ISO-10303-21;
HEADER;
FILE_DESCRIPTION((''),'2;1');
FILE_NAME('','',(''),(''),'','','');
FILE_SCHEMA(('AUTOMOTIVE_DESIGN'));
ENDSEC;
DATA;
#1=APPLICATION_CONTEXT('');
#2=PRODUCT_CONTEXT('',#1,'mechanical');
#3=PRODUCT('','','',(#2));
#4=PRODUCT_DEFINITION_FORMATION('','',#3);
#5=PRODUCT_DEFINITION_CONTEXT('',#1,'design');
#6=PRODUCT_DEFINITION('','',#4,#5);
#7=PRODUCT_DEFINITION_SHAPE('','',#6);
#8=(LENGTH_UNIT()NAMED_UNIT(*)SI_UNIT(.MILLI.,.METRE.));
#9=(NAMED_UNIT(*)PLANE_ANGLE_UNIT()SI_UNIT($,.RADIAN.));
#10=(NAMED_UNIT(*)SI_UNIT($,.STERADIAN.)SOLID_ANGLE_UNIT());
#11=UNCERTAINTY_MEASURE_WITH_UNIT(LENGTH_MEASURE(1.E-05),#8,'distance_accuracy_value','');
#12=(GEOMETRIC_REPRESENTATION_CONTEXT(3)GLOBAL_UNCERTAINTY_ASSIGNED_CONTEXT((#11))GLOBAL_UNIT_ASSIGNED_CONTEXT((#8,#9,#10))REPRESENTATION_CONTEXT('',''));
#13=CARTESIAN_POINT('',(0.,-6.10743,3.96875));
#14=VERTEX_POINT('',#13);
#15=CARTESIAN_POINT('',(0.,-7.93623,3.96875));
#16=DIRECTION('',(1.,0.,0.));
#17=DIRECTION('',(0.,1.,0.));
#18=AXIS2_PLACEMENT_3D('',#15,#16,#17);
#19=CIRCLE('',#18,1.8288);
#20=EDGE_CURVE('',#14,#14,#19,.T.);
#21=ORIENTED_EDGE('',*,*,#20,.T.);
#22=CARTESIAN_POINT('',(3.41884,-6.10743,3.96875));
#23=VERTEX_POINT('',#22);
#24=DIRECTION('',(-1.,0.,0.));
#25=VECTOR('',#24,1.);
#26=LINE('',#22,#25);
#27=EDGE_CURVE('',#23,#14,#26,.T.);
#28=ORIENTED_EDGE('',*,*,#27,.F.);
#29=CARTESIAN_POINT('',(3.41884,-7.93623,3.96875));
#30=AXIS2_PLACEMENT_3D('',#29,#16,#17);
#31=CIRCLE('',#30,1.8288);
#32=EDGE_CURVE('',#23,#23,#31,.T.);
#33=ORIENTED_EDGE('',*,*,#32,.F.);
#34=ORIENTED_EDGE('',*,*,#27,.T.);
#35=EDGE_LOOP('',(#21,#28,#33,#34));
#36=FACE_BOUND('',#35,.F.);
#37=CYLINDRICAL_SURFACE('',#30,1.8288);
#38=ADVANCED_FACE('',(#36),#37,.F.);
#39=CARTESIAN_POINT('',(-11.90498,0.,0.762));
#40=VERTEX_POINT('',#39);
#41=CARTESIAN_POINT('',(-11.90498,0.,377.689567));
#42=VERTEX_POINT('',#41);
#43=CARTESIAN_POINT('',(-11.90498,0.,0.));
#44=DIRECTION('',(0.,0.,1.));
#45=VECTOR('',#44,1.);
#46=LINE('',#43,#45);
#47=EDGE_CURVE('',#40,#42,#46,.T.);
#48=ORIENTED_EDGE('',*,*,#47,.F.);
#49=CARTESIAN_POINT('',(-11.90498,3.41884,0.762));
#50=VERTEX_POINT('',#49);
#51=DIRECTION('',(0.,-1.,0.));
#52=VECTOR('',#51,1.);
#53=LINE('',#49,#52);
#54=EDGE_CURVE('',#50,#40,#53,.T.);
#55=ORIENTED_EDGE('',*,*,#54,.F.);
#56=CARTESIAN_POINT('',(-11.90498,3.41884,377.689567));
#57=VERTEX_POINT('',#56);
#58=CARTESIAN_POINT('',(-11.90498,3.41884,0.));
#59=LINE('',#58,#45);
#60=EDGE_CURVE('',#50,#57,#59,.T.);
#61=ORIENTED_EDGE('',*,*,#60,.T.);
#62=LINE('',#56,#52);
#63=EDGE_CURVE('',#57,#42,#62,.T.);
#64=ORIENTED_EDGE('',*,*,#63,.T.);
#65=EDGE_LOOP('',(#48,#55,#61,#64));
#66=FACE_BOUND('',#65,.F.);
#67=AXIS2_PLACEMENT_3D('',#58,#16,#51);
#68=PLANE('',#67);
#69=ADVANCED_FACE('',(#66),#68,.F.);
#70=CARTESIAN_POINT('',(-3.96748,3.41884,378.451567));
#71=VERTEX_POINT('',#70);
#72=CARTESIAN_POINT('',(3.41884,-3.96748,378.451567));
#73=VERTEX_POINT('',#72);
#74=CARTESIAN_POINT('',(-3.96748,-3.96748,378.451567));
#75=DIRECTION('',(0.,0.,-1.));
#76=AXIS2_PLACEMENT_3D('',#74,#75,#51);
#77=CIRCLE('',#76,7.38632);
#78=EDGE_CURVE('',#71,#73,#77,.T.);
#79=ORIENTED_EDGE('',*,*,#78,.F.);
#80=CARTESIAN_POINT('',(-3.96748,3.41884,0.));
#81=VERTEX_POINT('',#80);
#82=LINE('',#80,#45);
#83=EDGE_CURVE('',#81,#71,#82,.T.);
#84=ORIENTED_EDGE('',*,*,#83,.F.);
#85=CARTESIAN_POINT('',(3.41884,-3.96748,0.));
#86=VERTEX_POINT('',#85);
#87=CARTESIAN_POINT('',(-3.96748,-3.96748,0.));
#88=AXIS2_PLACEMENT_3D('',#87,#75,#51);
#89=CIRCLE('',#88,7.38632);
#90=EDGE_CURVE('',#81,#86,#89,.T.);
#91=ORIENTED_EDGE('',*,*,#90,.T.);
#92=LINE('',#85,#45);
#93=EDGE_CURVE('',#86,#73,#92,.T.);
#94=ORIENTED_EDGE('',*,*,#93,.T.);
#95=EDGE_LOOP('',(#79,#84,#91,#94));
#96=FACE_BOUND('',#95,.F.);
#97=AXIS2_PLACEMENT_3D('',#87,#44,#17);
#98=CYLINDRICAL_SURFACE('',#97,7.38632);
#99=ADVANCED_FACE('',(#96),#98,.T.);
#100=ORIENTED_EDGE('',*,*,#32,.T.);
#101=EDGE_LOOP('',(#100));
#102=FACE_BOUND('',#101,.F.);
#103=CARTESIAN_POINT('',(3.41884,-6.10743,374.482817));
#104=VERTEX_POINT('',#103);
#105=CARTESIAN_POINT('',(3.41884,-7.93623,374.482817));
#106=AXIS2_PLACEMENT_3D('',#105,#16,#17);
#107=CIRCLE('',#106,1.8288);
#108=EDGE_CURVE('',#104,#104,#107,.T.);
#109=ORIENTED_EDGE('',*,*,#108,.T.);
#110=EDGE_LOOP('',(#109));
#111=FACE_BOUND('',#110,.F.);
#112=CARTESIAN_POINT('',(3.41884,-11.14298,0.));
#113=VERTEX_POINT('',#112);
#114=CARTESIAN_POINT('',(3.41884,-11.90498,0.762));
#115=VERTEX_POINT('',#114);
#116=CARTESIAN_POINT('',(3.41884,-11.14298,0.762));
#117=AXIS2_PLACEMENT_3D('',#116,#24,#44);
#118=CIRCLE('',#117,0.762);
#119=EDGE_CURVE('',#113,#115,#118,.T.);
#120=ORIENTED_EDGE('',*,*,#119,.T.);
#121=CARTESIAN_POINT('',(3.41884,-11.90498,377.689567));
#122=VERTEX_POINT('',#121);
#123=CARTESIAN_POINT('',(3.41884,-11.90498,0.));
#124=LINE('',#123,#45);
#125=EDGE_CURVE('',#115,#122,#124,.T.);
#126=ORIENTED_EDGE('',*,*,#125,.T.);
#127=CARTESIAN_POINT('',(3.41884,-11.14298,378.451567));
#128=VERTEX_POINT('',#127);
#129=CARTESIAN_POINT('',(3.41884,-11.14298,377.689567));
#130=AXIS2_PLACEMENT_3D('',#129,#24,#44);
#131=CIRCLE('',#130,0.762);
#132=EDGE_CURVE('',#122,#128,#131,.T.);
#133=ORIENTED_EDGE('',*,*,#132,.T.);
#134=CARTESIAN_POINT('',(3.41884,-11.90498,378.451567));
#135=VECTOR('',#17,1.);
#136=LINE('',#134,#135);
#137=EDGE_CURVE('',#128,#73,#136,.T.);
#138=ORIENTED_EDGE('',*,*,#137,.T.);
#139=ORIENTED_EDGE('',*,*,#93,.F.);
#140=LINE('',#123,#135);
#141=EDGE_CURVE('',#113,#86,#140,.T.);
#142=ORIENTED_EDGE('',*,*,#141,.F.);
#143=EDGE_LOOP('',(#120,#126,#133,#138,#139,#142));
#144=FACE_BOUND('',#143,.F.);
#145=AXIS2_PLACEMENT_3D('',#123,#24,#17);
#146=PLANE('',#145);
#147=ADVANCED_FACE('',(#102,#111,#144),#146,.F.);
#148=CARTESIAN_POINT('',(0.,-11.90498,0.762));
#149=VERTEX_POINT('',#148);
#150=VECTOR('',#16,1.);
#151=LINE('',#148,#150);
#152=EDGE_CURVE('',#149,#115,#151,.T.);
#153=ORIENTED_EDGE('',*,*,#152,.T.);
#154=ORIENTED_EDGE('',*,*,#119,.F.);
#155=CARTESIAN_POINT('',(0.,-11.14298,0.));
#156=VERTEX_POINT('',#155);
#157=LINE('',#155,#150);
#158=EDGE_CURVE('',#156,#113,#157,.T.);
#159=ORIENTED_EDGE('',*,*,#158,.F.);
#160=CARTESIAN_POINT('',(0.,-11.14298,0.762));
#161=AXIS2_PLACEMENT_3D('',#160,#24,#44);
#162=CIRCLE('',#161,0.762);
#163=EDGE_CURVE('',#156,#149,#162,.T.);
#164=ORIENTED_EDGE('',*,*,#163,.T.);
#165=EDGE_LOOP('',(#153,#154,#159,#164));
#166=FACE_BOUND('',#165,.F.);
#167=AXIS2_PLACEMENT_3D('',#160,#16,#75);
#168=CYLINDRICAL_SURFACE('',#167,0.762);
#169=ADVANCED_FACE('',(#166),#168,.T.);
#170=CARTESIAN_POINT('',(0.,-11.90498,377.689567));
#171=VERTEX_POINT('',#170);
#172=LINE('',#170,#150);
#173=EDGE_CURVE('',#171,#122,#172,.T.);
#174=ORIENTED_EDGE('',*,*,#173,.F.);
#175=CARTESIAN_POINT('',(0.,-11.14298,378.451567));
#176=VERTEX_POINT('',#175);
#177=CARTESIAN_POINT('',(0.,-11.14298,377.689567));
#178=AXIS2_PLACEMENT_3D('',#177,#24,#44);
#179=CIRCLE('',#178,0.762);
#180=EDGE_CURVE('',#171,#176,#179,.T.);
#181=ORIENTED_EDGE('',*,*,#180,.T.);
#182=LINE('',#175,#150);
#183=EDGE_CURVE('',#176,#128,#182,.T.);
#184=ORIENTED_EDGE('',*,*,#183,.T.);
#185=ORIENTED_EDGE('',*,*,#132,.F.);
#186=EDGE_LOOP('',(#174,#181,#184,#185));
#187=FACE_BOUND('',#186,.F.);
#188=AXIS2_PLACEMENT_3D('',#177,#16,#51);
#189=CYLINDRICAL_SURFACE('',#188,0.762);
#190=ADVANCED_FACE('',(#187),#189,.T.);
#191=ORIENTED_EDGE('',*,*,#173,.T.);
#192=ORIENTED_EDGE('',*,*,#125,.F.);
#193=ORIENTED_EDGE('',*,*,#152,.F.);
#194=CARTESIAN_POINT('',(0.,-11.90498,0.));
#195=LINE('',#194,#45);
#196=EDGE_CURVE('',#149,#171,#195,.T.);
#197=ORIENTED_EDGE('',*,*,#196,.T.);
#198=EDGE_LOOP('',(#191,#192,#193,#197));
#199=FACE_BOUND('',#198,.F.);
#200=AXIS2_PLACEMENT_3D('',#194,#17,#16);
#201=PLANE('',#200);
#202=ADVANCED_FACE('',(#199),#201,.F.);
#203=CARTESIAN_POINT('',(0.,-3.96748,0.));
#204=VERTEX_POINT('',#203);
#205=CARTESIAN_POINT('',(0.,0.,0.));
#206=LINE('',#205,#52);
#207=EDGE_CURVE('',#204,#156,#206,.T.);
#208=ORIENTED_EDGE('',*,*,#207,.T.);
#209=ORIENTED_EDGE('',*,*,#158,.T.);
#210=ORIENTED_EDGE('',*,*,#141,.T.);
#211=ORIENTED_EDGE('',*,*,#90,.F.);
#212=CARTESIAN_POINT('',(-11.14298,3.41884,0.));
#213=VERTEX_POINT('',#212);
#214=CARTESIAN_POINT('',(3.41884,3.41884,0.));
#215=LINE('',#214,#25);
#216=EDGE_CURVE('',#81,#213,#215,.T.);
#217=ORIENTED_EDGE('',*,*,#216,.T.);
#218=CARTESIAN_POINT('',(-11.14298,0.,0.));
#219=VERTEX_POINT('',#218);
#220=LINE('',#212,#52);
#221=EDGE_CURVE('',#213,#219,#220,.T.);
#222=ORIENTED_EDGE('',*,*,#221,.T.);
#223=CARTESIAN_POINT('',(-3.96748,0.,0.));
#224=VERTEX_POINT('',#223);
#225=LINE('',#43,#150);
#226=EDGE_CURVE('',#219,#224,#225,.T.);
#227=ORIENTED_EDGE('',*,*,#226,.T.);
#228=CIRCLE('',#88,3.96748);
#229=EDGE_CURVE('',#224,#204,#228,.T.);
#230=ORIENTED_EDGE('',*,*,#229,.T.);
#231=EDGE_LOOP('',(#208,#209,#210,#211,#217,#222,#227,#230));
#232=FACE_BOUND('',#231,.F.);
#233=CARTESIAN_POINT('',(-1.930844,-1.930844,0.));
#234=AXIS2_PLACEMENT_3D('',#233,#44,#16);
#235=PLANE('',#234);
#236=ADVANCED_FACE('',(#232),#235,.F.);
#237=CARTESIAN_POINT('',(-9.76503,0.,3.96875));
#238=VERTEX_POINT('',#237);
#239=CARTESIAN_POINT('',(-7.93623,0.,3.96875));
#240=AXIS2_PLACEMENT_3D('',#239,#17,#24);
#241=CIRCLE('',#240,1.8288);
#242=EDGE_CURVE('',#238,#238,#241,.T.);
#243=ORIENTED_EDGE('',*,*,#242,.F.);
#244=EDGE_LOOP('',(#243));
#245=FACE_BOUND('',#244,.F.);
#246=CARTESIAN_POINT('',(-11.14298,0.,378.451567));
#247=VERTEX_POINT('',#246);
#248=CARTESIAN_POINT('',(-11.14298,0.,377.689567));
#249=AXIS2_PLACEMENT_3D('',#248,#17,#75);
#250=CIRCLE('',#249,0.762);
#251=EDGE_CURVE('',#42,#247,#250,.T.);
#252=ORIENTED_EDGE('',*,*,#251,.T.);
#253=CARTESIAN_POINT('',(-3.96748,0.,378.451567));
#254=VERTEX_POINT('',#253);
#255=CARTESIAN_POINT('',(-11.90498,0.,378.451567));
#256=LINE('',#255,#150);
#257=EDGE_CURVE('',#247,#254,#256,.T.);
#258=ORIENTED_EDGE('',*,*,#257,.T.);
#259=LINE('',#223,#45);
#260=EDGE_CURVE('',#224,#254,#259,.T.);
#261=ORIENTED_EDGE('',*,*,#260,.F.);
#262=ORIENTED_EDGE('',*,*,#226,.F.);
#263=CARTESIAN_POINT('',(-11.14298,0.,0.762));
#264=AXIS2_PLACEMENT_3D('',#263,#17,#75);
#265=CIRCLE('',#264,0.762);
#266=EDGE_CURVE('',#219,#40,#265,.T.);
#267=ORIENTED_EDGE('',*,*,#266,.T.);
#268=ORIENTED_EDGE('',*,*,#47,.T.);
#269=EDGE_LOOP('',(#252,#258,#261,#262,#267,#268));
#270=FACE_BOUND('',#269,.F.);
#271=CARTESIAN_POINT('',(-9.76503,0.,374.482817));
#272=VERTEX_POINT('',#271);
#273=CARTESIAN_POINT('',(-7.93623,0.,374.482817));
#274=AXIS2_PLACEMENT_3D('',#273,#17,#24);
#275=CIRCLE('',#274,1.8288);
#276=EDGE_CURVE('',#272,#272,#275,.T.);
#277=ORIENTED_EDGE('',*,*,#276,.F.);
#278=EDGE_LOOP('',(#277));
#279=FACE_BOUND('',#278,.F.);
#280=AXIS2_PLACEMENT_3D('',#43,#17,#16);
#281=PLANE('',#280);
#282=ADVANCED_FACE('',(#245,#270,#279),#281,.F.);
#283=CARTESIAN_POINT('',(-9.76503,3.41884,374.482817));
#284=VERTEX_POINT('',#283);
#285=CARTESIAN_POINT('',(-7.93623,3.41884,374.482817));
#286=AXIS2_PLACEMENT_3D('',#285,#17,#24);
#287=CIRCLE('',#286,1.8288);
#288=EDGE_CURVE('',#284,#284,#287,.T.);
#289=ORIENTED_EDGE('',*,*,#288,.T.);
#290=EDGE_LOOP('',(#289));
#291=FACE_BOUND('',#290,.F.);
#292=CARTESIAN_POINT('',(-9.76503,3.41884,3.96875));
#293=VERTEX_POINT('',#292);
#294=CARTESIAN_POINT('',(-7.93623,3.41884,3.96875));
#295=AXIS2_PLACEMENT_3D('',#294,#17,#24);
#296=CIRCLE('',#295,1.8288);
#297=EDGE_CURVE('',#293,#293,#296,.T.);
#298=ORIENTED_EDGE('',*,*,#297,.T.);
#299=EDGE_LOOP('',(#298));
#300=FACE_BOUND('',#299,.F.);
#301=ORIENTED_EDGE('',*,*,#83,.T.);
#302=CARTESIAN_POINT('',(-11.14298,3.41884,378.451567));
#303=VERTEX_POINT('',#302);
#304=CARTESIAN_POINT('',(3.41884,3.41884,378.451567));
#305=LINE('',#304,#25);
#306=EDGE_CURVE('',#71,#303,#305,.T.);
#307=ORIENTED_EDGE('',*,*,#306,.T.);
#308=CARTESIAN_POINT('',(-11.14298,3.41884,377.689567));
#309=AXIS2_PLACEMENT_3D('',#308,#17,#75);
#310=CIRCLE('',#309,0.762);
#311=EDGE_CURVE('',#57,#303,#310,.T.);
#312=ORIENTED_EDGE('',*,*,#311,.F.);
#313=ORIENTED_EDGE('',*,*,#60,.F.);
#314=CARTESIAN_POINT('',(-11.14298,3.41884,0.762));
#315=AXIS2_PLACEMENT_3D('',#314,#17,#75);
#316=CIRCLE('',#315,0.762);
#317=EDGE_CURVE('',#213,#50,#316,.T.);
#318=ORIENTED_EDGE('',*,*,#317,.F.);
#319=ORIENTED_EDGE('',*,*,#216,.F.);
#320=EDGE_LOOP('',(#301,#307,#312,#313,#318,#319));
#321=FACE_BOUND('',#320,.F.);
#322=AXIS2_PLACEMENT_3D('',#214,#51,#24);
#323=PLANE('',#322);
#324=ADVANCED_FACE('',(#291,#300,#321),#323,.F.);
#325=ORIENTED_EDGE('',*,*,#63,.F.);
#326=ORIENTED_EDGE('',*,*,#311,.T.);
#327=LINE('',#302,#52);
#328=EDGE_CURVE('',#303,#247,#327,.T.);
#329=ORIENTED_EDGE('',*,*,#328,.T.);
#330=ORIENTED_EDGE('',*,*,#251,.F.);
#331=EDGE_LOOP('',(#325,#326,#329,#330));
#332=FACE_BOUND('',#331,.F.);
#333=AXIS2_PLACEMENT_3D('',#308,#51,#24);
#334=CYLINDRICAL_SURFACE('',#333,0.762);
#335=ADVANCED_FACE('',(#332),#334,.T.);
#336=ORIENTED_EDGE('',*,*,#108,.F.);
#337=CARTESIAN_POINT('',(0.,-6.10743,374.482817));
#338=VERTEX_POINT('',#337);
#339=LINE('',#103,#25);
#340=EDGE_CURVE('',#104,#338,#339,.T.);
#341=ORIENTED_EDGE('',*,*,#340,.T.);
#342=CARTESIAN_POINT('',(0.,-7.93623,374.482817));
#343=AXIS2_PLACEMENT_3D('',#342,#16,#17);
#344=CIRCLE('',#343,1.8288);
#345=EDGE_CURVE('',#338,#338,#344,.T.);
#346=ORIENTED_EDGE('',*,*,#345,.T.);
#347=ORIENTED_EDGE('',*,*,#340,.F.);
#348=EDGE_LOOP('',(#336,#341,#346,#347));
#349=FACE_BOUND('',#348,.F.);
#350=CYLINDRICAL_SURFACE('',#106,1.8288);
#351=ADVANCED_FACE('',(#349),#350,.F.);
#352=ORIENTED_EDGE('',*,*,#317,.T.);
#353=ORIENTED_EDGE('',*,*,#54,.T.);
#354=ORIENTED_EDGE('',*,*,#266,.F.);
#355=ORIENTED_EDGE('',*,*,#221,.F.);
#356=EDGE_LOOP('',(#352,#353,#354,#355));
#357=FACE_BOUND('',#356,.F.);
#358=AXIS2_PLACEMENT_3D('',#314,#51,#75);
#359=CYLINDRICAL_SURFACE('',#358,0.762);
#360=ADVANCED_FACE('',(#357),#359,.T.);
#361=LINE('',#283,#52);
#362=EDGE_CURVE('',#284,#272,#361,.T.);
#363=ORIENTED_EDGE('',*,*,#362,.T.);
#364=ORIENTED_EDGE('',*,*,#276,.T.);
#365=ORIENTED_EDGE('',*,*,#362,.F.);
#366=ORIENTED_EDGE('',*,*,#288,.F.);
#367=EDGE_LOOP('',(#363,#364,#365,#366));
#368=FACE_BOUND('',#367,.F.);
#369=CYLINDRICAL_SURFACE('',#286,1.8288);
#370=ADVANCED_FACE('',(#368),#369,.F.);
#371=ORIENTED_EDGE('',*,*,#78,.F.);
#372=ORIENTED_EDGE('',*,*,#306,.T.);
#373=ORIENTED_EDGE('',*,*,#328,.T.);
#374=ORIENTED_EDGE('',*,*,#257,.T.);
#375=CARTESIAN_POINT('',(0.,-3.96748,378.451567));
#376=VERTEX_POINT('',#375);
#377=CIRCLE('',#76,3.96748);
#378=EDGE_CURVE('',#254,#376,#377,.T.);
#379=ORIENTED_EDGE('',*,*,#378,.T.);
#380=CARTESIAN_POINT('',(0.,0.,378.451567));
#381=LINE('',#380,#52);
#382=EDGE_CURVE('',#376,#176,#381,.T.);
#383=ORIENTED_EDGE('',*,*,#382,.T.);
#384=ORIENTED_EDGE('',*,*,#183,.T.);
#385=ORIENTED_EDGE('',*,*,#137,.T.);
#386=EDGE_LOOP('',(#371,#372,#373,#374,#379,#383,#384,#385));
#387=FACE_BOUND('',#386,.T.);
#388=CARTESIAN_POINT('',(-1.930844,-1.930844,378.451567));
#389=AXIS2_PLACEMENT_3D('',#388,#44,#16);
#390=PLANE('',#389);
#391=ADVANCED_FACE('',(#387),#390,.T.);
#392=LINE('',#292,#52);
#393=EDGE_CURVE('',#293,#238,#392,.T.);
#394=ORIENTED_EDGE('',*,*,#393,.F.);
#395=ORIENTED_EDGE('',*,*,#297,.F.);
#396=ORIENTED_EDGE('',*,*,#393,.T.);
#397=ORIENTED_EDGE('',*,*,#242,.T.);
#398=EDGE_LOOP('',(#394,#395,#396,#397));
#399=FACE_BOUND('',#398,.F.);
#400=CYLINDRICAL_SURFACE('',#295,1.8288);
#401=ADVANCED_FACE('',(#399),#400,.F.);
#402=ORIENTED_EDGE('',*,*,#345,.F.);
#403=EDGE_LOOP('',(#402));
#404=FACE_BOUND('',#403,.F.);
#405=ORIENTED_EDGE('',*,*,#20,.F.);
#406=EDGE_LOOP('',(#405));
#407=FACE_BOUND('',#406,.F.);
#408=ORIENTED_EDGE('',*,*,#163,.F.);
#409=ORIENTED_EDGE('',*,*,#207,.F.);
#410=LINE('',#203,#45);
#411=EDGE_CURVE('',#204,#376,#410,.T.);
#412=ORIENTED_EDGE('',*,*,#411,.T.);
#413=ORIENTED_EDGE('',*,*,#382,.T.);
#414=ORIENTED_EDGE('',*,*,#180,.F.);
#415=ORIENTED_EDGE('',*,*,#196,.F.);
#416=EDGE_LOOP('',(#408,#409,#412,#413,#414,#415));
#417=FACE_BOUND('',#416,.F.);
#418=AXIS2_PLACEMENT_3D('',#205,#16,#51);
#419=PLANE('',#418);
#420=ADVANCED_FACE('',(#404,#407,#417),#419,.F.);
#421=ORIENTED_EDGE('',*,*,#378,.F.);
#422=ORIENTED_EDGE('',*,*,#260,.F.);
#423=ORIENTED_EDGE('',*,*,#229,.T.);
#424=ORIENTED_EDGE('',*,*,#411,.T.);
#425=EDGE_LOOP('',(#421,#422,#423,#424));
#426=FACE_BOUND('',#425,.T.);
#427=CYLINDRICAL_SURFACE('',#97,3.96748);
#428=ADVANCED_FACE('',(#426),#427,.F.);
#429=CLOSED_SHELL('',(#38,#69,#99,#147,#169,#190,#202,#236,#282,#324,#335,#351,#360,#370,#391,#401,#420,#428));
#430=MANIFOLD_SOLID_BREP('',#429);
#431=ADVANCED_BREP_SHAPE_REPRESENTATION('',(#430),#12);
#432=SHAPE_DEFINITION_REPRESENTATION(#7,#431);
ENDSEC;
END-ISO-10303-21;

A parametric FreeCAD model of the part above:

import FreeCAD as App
import Part
import Sketcher
Q = App.Units.Quantity


def edges_at(feature, points):
    """Names of the edges that pass closest to the given points."""
    edges = feature.Shape.Edges
    near = lambda p: min(range(len(edges)), key=lambda i: edges[i].distToShape(Part.Vertex(*p))[0])
    return sorted({f"Edge{near(p) + 1}" for p in points})


def add_polygon(sketch, points):
    """Adds a closed chain of lines whose ends are joined by coincident constraints."""
    first, n = sketch.GeometryCount, len(points)
    for a, b in zip(points, points[1:] + points[:1]):
        sketch.addGeometry(Part.LineSegment(App.Vector(*a, 0), App.Vector(*b, 0)), False)
    for i in range(n):
        sketch.addConstraint(Sketcher.Constraint("Coincident", first + i, 2, first + (i + 1) % n, 1))

doc = App.newDocument("Part")
params = doc.addObject("Spreadsheet::Sheet", "Params")
for row, (alias, value) in enumerate([
    ("pad1_length", "378.451567 mm"),
    ("fillet_radius", "0.1562 in"),
    ("fillet2_radius", "0.2908 in"),
    ("sketch2_diameter", "0.144 in"),
    ("sketch3_diameter", "0.144 in"),
    ("fillet3_radius", "0.03 in"),
], start=1):
    params.set(f"A{row}", alias)
    params.set(f"B{row}", "=" + value)
    params.setAlias(f"B{row}", alias)

body = doc.addObject("PartDesign::Body", "Body")

# Sketch on XY plane
sketch1 = body.newObject("Sketcher::SketchObject", "Sketch")
sketch1.AttachmentSupport = (doc.getObject("XY_Plane"), [""])
sketch1.MapMode = "FlatFace"
add_polygon(sketch1, [(-11.9, 0), (0, 0), (0, -11.9), (3.4, -11.9), (3.4, 3.4), (-11.9, 3.4)])  # lines 0-5
sketch1.addConstraint([
    Sketcher.Constraint("Horizontal", 0),
    Sketcher.Constraint("Vertical", 1),
    Sketcher.Constraint("Horizontal", 2),
    Sketcher.Constraint("Vertical", 3),
    Sketcher.Constraint("Horizontal", 4),
    Sketcher.Constraint("Vertical", 5),
    Sketcher.Constraint("Coincident", 0, 2, -1, 1),
    Sketcher.Constraint("Equal", 0, 1),
    Sketcher.Constraint("Equal", 4, 3),
    Sketcher.Constraint("DistanceX", 0, 1, 0, 2, Q("0.4687 in")),
    Sketcher.Constraint("DistanceX", 2, 1, 2, 2, Q("0.1346 in")),
])
pad1 = body.newObject("PartDesign::Pad", "Pad")
pad1.Profile = sketch1
pad1.setExpression("Length", "Params.pad1_length")
doc.recompute()

fillet = body.newObject("PartDesign::Fillet", "Fillet")
fillet.Base = (pad1, edges_at(pad1, [(0, 0, 189.226)]))
fillet.setExpression("Radius", "Params.fillet_radius")
doc.recompute()

fillet2 = body.newObject("PartDesign::Fillet", "Fillet001")
fillet2.Base = (fillet, edges_at(fillet, [(3.419, 3.419, 189.226)]))
fillet2.setExpression("Radius", "Params.fillet2_radius")

# Sketch on XZ plane
sketch2 = body.newObject("Sketcher::SketchObject", "Sketch001")
sketch2.AttachmentSupport = (doc.getObject("XZ_Plane"), [""])
sketch2.MapMode = "FlatFace"
sketch2.AttachmentOffset = App.Placement(App.Vector(0, 0, -0.1346 * 25.4), App.Rotation())
sketch2.addGeometry([
    Part.Circle(App.Vector(-7.9, 4, 0), App.Vector(0, 0, 1), 1.8),
    Part.Circle(App.Vector(-7.9, 374.5, 0), App.Vector(0, 0, 1), 1.8),
], False)
sketch2.addConstraint([
    Sketcher.Constraint("Equal", 0, 1),
    Sketcher.Constraint("Vertical", 0, 3, 1, 3),
    Sketcher.Constraint("Diameter", 0, Q("0.144 in")),
    Sketcher.Constraint("DistanceY", -1, 1, 0, 3, Q("0.15625 in")),
    Sketcher.Constraint("DistanceX", 0, 3, -1, 1, Q("7.93623 mm")),
    Sketcher.Constraint("DistanceY", -1, 1, 1, 3, Q("374.482817 mm")),
])
sketch2.setExpression("Constraints[2]", "Params.sketch2_diameter")
pocket1 = body.newObject("PartDesign::Pocket", "Pocket")
pocket1.Profile = sketch2
pocket1.Type = "ThroughAll"
pocket1.Reversed = True

# Sketch on YZ plane
sketch3 = body.newObject("Sketcher::SketchObject", "Sketch002")
sketch3.AttachmentSupport = (doc.getObject("YZ_Plane"), [""])
sketch3.MapMode = "FlatFace"
sketch3.AttachmentOffset = App.Placement(App.Vector(0, 0, 0.1346 * 25.4), App.Rotation())
sketch3.addGeometry([
    Part.Circle(App.Vector(-7.9, 374.5, 0), App.Vector(0, 0, 1), 1.8),
    Part.Circle(App.Vector(-7.9, 4, 0), App.Vector(0, 0, 1), 1.8),
], False)
sketch3.addConstraint([
    Sketcher.Constraint("Equal", 0, 1),
    Sketcher.Constraint("Vertical", 0, 3, 1, 3),
    Sketcher.Constraint("Diameter", 0, Q("0.144 in")),
    Sketcher.Constraint("DistanceY", -1, 1, 1, 3, Q("0.15625 in")),
    Sketcher.Constraint("DistanceX", 0, 3, -1, 1, Q("7.93623 mm")),
    Sketcher.Constraint("DistanceY", -1, 1, 0, 3, Q("374.482817 mm")),
])
sketch3.setExpression("Constraints[2]", "Params.sketch3_diameter")
pocket2 = body.newObject("PartDesign::Pocket", "Pocket001")
pocket2.Profile = sketch3
pocket2.Type = "ThroughAll"
doc.recompute()

fillet3 = body.newObject("PartDesign::Fillet", "Fillet002")
fillet3.Base = (pocket2, edges_at(pocket2, [
    (-11.905, 1.709, 378.452),
    (1.709, -11.905, 378.452),
    (1.709, -11.905, 0),
    (-11.905, 1.709, 0),
]))
fillet3.setExpression("Radius", "Params.fillet3_radius")

doc.recompute()
